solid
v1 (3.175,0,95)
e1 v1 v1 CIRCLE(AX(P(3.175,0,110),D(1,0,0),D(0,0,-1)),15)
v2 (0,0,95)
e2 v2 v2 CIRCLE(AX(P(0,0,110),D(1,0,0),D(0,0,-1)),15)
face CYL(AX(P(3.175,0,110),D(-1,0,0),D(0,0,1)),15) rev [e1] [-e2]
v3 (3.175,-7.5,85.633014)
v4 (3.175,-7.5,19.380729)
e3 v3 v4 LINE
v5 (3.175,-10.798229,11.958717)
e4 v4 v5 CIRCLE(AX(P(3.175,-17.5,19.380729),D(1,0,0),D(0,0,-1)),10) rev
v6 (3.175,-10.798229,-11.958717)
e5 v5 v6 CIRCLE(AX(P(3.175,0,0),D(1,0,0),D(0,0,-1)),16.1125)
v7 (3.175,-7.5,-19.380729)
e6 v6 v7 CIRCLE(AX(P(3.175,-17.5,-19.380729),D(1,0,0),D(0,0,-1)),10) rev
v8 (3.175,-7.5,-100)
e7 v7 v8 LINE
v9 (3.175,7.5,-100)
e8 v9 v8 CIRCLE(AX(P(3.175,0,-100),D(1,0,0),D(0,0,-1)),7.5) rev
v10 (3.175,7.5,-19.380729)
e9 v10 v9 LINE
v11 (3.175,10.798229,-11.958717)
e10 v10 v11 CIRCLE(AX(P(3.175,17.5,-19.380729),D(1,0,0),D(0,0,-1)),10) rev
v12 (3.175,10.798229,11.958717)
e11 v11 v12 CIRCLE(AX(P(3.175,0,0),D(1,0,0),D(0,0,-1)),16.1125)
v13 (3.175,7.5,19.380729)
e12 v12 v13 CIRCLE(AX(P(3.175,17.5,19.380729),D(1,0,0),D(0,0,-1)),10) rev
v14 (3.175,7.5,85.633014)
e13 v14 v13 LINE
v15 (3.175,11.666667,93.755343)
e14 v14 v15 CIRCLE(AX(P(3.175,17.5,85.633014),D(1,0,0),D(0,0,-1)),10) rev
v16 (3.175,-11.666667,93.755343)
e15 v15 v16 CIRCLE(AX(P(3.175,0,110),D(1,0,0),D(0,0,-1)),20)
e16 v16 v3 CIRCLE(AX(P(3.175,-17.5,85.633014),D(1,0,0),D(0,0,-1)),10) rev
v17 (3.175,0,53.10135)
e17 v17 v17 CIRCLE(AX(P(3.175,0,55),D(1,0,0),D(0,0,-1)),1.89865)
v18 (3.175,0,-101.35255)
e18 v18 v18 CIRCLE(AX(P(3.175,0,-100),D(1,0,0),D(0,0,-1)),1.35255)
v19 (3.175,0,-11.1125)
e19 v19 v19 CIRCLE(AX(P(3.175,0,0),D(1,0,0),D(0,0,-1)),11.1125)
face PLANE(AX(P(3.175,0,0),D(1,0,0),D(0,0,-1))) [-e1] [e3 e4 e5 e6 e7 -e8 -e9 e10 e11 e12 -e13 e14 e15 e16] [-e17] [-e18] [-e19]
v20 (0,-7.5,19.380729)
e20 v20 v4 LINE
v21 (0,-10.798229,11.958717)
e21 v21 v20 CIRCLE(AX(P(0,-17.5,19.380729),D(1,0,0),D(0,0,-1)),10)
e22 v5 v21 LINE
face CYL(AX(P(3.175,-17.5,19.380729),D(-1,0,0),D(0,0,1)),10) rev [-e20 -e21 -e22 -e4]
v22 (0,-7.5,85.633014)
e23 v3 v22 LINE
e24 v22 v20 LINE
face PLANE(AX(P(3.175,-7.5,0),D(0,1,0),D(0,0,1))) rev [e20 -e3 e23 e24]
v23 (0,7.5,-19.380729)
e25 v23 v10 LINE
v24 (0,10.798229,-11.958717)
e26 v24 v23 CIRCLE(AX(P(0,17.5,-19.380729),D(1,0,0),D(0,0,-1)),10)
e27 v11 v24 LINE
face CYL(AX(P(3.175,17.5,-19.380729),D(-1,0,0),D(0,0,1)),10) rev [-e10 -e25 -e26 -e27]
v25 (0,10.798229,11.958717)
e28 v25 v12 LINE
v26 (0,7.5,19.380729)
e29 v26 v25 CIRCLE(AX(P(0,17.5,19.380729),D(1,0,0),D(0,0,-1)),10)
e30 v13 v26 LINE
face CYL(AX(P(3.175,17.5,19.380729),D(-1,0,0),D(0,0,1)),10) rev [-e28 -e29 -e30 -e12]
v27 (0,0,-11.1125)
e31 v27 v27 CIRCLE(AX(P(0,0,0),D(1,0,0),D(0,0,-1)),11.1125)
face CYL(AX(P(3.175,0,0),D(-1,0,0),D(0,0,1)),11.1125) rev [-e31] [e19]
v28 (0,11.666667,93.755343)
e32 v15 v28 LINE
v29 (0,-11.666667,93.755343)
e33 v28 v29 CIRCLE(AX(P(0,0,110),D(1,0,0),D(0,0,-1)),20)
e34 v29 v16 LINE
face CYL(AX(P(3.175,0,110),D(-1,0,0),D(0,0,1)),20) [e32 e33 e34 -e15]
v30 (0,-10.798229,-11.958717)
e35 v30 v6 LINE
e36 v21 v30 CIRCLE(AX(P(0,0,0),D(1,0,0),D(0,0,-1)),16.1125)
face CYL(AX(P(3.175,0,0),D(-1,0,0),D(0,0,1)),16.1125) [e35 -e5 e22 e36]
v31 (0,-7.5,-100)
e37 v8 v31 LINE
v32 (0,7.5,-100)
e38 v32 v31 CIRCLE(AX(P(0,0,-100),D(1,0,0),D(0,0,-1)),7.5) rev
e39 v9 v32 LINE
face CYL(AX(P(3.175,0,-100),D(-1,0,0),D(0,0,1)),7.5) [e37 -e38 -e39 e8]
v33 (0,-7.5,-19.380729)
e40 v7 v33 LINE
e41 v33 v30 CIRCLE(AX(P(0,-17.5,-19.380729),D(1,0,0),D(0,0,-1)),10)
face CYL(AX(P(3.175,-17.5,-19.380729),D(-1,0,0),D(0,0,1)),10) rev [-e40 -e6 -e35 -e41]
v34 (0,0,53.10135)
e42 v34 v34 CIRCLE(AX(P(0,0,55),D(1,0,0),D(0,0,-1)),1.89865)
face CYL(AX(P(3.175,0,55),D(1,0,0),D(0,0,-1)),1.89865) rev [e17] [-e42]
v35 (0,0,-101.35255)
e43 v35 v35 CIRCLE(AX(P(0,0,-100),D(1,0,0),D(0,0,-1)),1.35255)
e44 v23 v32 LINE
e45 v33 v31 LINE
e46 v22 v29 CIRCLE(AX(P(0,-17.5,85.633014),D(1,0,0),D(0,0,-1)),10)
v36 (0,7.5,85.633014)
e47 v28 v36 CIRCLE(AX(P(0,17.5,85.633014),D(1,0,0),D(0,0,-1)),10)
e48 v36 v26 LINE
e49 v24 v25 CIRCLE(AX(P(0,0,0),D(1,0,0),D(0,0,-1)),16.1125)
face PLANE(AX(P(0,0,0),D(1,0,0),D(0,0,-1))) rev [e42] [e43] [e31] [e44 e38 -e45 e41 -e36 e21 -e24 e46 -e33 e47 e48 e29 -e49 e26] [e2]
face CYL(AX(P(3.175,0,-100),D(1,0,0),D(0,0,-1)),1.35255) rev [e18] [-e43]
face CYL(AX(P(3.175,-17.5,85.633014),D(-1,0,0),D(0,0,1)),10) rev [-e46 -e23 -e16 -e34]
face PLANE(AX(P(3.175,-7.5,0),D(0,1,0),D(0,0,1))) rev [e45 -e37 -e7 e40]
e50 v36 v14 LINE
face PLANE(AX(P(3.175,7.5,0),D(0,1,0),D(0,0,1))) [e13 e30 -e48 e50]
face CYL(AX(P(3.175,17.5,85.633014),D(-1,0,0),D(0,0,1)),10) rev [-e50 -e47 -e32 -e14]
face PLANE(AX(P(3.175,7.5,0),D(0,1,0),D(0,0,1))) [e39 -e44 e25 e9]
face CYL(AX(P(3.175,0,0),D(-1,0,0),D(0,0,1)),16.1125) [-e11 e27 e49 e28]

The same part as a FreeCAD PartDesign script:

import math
import FreeCAD as App
import Part
import Sketcher
from FreeCAD import Vector
Q = App.Units.Quantity


def edges_at(feature, points):
    """Names of the edges that pass closest to the given points."""
    edges = feature.Shape.Edges
    near = lambda p: min(range(len(edges)), key=lambda i: edges[i].distToShape(Part.Vertex(*p))[0])
    return sorted({f"Edge{near(p) + 1}" for p in points})

doc = App.newDocument("Part")
body = doc.addObject("PartDesign::Body", "Body")

# Sketch on YZ plane
sketch1 = doc.addObject("Sketcher::SketchObject", "Sketch")
body.addObject(sketch1)
sketch1.AttachmentSupport = (doc.YZ_Plane, [""])
sketch1.MapMode = "FlatFace"
sketch1.addGeometry(Part.ArcOfCircle(Part.Circle(Vector(0, 110, 0), Vector(0, 0, 1), 20), math.radians(-68), math.radians(248)), False)
sketch1.addGeometry(Part.LineSegment(Vector(-8, 91, 0), Vector(-8, 14, 0)), False)
sketch1.addGeometry(Part.ArcOfCircle(Part.Circle(Vector(0, 0, 0), Vector(0, 0, 1), 16), math.radians(118), math.radians(242)), False)
sketch1.addGeometry(Part.LineSegment(Vector(-8, -14, 0), Vector(-8, -100, 0)), False)
sketch1.addGeometry(Part.ArcOfCircle(Part.Circle(Vector(0, -100, 0), Vector(0, 0, 1), 8), math.radians(180), math.radians(360)), False)
sketch1.addGeometry(Part.LineSegment(Vector(8, -100, 0), Vector(8, -14, 0)), False)
sketch1.addGeometry(Part.ArcOfCircle(Part.Circle(Vector(0, 0, 0), Vector(0, 0, 1), 16), math.radians(-62), math.radians(62)), False)
sketch1.addGeometry(Part.LineSegment(Vector(8, 14, 0), Vector(8, 91, 0)), False)
sketch1.addGeometry(Part.Circle(Vector(0, 110, 0), Vector(0, 0, 1), 15), False)
sketch1.addGeometry(Part.Circle(Vector(0, 0, 0), Vector(0, 0, 1), 11), False)
sketch1.addConstraint(Sketcher.Constraint("Coincident", 0, 2, 1, 1))
sketch1.addConstraint(Sketcher.Constraint("Coincident", 1, 2, 2, 1))
sketch1.addConstraint(Sketcher.Constraint("Coincident", 2, 2, 3, 1))
sketch1.addConstraint(Sketcher.Constraint("Tangent", 3, 2, 4, 1))
sketch1.addConstraint(Sketcher.Constraint("Tangent", 4, 2, 5, 1))
sketch1.addConstraint(Sketcher.Constraint("Coincident", 5, 2, 6, 1))
sketch1.addConstraint(Sketcher.Constraint("Coincident", 6, 2, 7, 1))
sketch1.addConstraint(Sketcher.Constraint("Coincident", 7, 2, 0, 1))
sketch1.addConstraint(Sketcher.Constraint("Vertical", 1))
sketch1.addConstraint(Sketcher.Constraint("Vertical", 3))
sketch1.addConstraint(Sketcher.Constraint("Vertical", 5))
sketch1.addConstraint(Sketcher.Constraint("Vertical", 7))
sketch1.addConstraint(Sketcher.Constraint("Coincident", 2, 3, -1, 1))
sketch1.addConstraint(Sketcher.Constraint("Coincident", 6, 3, -1, 1))
sketch1.addConstraint(Sketcher.Constraint("Coincident", 9, 3, -1, 1))
sketch1.addConstraint(Sketcher.Constraint("Coincident", 8, 3, 0, 3))
sketch1.addConstraint(Sketcher.Constraint("Equal", 2, 6))
sketch1.addConstraint(Sketcher.Constraint("Symmetric", 0, 2, 7, 2, -2))
sketch1.addConstraint(Sketcher.Constraint("PointOnObject", 4, 3, -2))
sketch1.addConstraint(Sketcher.Constraint("Vertical", 1, 2, 2, 2))
sketch1.addConstraint(Sketcher.Constraint("Diameter", 8, Q("30 mm")))
sketch1.addConstraint(Sketcher.Constraint("Radius", 0, Q("20 mm")))
sketch1.addConstraint(Sketcher.Constraint("Radius", 4, Q("7.5 mm")))
sketch1.addConstraint(Sketcher.Constraint("Diameter", 9, Q("22.225 mm")))
sketch1.addConstraint(Sketcher.Constraint("DistanceY", -1, 1, 0, 3, Q("110 mm")))
sketch1.addConstraint(Sketcher.Constraint("DistanceY", 4, 3, -1, 1, Q("100 mm")))
sketch1.addConstraint(Sketcher.Constraint("Radius", 2, Q("16.1125 mm")))
pad1 = doc.addObject("PartDesign::Pad", "Pad")
body.addObject(pad1)
pad1.Profile = sketch1
pad1.Length = 3.175

# Sketch on YZ plane
sketch2 = doc.addObject("Sketcher::SketchObject", "Sketch001")
body.addObject(sketch2)
sketch2.AttachmentSupport = (doc.YZ_Plane, [""])
sketch2.MapMode = "FlatFace"
sketch2.AttachmentOffset = App.Placement(Vector(0, 0, 3.175), App.Rotation())
sketch2.addGeometry(Part.Circle(Vector(0, 55, 0), Vector(0, 0, 1), 1.9), False)
sketch2.addConstraint(Sketcher.Constraint("PointOnObject", 0, 3, -2))
sketch2.addConstraint(Sketcher.Constraint("DistanceY", -1, 1, 0, 3, Q("55 mm")))
sketch2.addConstraint(Sketcher.Constraint("Diameter", 0, Q("3.7973 mm")))
doc.recompute()
hole = doc.addObject("PartDesign::Hole", "Hole")
body.addObject(hole)
hole.Profile = sketch2
hole.ThreadType = "None"
hole.Diameter = 3.7973
hole.DepthType = "ThroughAll"

# Sketch on YZ plane
sketch3 = doc.addObject("Sketcher::SketchObject", "Sketch002")
body.addObject(sketch3)
sketch3.AttachmentSupport = (doc.YZ_Plane, [""])
sketch3.MapMode = "FlatFace"
sketch3.AttachmentOffset = App.Placement(Vector(0, 0, 3.175), App.Rotation())
sketch3.addGeometry(Part.Circle(Vector(0, -100, 0), Vector(0, 0, 1), 1.4), False)
sketch3.addConstraint(Sketcher.Constraint("PointOnObject", 0, 3, -2))
sketch3.addConstraint(Sketcher.Constraint("DistanceY", 0, 3, -1, 1, Q("100 mm")))
sketch3.addConstraint(Sketcher.Constraint("Diameter", 0, Q("2.7051 mm")))
doc.recompute()
hole2 = doc.addObject("PartDesign::Hole", "Hole001")
body.addObject(hole2)
hole2.Profile = sketch3
hole2.ThreadType = "None"
hole2.Diameter = 2.7051
hole2.DepthType = "ThroughAll"
doc.recompute()

fillet = doc.addObject("PartDesign::Fillet", "Fillet")
body.addObject(fillet)
fillet.Base = (hole2, edges_at(hole2, [
    (1.587, 7.5, 91.46),
    (1.587, 7.5, 14.261),
    (1.587, 7.5, -14.261),
    (1.587, -7.5, -14.261),
    (1.587, -7.5, 14.261),
    (1.587, -7.5, 91.46),
]))
fillet.Radius = 10

doc.recompute()
